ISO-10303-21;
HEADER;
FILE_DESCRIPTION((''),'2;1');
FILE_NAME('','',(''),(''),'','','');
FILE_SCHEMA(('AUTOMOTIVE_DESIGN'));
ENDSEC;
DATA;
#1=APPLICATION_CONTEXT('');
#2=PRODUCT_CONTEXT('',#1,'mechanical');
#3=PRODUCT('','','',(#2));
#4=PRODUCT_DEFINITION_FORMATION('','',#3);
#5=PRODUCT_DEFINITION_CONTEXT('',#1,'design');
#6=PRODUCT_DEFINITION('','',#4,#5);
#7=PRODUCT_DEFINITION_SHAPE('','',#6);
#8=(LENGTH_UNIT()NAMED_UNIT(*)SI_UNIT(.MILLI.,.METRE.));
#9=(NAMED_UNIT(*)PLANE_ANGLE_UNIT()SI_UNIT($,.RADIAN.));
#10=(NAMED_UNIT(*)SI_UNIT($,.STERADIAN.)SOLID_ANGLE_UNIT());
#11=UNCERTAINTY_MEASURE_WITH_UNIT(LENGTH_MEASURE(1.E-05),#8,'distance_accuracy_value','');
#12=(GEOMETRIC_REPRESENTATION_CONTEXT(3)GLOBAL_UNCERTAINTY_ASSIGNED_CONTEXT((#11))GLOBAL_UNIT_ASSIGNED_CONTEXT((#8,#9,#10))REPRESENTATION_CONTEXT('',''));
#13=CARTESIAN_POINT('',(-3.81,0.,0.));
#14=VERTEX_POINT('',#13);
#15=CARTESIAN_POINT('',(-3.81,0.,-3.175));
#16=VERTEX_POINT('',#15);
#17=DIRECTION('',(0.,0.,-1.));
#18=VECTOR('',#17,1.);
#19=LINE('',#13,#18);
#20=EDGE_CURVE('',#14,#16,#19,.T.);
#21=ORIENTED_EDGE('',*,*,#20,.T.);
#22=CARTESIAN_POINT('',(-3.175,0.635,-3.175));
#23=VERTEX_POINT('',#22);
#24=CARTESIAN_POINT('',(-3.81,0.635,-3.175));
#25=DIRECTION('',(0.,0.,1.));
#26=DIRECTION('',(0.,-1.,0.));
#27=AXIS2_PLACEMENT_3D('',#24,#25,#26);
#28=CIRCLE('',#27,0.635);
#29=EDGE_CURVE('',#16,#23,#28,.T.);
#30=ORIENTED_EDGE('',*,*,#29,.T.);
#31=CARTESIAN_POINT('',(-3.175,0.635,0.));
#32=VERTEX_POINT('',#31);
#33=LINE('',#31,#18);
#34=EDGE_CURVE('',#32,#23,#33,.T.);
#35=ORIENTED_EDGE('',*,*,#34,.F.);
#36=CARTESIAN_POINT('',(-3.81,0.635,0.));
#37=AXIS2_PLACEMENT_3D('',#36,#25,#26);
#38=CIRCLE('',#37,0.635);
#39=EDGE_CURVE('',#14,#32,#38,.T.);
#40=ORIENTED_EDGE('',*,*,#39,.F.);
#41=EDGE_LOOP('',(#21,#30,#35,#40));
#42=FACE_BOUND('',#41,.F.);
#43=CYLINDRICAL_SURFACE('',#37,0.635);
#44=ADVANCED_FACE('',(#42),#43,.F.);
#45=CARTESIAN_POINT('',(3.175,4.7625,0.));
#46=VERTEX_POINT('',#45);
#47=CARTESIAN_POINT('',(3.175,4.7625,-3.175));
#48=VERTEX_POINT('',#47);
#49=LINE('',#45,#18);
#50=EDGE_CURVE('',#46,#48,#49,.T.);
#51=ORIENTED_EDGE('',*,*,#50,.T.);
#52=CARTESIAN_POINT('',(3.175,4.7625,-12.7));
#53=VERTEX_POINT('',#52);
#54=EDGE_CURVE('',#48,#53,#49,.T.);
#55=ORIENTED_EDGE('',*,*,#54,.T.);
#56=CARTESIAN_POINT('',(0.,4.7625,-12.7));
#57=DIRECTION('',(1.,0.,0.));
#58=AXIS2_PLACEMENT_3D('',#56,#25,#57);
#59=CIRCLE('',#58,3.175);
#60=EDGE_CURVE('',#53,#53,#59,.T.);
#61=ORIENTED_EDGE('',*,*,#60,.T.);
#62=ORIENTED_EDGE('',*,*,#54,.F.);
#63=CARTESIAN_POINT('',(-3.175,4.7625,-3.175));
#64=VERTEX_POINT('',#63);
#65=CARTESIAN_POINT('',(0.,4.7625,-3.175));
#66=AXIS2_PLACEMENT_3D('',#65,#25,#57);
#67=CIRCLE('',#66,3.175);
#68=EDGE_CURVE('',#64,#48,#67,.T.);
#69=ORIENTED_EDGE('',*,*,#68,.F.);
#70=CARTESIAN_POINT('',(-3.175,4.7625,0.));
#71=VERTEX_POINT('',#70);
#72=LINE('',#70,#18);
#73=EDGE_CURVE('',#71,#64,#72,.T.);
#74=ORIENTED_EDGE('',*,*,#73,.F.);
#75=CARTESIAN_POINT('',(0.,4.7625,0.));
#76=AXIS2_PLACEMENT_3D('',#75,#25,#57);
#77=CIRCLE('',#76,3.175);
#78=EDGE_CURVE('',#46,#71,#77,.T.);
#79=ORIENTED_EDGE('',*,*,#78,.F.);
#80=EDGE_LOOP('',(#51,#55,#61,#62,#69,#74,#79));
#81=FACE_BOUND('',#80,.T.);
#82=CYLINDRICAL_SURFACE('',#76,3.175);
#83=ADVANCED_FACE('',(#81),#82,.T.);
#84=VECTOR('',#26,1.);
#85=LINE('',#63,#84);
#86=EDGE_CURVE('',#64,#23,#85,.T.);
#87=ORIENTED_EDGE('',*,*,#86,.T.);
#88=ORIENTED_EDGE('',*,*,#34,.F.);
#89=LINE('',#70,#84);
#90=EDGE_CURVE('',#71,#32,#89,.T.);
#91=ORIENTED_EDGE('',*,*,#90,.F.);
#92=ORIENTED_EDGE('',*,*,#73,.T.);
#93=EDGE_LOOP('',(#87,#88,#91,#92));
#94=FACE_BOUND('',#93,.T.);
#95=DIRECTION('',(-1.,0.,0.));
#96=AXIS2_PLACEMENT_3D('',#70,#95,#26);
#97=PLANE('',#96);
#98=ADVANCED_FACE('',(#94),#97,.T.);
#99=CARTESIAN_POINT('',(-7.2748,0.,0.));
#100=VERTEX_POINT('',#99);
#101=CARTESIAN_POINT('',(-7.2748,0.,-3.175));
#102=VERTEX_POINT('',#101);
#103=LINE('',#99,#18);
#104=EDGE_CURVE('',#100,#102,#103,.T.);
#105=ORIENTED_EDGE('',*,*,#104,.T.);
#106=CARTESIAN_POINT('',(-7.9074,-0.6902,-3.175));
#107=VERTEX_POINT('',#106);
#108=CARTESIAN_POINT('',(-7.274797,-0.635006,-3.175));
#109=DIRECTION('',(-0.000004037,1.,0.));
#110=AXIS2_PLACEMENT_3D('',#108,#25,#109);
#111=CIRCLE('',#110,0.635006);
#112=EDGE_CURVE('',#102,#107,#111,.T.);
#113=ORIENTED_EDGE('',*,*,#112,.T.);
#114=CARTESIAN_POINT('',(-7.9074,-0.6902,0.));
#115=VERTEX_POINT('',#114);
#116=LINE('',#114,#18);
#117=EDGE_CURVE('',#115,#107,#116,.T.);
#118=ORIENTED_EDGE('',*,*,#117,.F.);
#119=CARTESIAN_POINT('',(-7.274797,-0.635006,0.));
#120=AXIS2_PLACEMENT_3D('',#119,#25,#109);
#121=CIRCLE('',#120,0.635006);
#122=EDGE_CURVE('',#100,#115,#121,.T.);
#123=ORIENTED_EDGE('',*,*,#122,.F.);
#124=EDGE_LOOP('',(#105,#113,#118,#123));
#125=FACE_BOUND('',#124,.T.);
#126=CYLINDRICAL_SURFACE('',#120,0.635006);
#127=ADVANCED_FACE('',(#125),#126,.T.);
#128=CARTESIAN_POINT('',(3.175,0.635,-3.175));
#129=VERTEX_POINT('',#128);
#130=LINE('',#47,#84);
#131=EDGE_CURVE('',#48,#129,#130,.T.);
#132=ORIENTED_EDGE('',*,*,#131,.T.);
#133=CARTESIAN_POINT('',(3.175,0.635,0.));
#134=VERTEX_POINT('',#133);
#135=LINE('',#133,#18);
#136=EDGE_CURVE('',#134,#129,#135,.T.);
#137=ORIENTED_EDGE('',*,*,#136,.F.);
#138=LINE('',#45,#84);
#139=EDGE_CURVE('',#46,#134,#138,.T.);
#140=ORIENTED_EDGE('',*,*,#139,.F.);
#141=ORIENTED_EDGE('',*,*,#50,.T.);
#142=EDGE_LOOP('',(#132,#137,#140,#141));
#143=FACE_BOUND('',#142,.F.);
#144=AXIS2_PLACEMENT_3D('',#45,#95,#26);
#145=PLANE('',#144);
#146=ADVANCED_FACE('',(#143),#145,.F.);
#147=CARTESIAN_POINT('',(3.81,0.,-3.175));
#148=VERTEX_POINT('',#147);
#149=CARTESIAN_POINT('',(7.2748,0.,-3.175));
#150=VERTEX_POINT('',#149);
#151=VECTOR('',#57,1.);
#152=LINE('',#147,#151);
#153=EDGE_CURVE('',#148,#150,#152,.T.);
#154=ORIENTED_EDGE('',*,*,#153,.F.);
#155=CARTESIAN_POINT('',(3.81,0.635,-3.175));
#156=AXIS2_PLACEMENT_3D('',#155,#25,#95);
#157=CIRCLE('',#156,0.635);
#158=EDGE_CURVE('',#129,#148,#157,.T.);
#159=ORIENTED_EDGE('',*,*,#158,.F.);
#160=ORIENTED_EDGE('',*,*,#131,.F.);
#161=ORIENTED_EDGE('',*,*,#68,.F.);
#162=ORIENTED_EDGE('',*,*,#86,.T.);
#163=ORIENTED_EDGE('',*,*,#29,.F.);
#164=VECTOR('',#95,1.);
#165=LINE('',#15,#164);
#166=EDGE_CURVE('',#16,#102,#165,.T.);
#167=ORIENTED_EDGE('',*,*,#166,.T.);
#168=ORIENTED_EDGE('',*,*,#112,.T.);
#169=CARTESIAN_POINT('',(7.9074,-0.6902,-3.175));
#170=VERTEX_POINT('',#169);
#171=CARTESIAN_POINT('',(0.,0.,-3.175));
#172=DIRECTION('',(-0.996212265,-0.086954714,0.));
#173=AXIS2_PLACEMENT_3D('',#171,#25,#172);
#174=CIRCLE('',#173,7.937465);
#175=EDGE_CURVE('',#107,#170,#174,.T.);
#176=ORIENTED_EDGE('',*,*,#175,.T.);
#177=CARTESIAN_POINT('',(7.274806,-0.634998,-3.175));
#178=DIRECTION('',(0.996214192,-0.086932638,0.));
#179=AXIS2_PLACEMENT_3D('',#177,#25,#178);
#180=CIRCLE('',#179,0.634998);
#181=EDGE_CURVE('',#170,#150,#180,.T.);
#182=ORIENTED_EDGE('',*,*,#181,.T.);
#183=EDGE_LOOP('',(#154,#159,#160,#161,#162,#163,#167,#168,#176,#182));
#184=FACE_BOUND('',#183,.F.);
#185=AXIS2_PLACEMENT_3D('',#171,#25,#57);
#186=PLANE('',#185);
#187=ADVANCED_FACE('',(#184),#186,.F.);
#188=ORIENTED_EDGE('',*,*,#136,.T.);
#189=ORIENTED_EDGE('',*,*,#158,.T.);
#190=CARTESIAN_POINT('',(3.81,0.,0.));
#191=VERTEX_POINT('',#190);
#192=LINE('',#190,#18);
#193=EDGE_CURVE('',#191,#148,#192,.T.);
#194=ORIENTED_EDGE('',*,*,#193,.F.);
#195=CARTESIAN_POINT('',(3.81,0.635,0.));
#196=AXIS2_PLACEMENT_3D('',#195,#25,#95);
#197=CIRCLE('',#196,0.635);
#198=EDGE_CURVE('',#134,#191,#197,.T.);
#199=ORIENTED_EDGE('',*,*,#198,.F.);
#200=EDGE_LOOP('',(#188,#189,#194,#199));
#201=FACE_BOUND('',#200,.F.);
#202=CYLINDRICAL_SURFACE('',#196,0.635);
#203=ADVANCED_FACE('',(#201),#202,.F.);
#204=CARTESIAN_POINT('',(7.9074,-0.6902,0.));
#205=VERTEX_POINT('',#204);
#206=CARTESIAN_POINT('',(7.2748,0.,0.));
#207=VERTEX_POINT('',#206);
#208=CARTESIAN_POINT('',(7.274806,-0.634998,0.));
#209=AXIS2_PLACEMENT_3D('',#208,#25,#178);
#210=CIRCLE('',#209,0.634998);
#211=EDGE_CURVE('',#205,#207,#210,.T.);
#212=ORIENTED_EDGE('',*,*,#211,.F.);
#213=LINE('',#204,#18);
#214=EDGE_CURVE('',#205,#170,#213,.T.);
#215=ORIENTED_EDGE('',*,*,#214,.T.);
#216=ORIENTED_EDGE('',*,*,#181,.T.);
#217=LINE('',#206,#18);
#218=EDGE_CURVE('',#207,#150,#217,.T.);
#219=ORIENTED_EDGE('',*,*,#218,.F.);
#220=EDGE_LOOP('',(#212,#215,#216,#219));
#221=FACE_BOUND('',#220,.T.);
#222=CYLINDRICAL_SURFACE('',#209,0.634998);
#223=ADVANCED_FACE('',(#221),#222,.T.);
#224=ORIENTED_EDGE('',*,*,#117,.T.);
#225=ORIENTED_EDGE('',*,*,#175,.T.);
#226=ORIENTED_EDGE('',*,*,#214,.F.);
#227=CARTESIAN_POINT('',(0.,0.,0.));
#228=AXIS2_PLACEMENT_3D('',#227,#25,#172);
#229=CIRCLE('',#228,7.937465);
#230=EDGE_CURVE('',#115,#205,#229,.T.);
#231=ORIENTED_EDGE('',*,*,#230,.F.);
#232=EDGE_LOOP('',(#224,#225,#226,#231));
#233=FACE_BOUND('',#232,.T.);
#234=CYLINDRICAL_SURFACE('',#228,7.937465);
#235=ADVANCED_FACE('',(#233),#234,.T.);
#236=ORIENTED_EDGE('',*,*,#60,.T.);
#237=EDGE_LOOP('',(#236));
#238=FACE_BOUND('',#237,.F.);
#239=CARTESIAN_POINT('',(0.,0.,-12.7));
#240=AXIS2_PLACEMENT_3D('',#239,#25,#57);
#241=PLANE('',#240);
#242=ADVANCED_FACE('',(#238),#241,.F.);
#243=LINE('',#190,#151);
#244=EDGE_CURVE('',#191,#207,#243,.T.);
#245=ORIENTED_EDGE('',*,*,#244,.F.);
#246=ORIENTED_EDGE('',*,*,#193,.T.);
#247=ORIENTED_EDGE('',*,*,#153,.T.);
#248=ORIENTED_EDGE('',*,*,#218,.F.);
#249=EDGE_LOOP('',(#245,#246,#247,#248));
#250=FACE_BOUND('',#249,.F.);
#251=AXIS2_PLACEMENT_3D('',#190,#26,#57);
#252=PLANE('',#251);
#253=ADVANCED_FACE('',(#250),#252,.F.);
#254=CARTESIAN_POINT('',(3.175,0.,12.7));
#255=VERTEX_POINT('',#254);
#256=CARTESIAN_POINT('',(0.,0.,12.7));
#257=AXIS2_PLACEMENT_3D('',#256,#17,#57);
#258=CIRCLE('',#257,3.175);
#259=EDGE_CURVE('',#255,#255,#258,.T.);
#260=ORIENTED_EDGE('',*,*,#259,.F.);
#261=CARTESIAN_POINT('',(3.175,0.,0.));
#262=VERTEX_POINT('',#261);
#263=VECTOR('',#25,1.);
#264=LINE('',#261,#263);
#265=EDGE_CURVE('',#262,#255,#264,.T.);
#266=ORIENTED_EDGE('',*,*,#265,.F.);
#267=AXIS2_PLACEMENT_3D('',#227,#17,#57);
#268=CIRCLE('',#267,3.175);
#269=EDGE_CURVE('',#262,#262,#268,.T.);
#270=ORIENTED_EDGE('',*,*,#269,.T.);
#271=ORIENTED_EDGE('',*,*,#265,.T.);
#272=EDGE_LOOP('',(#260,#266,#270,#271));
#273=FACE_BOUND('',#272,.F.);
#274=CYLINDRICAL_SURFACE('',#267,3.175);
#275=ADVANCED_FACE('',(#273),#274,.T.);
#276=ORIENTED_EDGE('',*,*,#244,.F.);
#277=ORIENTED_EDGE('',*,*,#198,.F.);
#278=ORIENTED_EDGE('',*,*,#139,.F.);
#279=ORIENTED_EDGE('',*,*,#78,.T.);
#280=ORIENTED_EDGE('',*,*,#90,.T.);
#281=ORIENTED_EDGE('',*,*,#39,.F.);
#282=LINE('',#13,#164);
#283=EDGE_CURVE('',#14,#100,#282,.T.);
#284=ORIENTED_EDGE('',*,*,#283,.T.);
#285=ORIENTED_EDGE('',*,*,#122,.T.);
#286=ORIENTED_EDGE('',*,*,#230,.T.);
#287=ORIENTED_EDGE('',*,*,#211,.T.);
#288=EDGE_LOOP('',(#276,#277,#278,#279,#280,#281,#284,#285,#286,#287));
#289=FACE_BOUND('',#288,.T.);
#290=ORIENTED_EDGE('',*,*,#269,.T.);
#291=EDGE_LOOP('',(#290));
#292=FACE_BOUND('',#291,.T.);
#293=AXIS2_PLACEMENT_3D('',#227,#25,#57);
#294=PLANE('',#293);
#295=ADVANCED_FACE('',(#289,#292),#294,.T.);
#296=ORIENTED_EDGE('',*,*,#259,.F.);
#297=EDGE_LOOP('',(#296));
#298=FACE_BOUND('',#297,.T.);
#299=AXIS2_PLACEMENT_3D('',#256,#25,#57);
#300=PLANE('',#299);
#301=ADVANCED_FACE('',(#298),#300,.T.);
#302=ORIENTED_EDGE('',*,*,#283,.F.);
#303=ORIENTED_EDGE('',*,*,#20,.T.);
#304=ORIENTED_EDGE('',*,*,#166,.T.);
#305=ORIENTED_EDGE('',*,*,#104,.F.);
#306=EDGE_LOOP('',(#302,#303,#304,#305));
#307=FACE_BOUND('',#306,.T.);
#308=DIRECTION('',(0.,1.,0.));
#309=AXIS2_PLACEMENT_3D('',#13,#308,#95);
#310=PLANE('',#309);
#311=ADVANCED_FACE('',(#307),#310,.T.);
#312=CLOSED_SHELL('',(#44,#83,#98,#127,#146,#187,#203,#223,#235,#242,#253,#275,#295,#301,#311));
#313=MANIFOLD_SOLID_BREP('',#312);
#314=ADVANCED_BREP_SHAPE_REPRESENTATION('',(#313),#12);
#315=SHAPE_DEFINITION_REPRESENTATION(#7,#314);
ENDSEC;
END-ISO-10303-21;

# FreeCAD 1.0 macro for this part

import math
import FreeCAD as App
import Part
import Sketcher

V = App.Vector
Q = App.Units.Quantity

doc = App.newDocument("Part")
body = doc.addObject("PartDesign::Body", "Body")

sketch1 = body.newObject("Sketcher::SketchObject", "Sketch")
sketch1.AttachmentSupport = (doc.getObject("XY_Plane"), [""])
sketch1.MapMode = "FlatFace"
sketch1.addGeometry(Part.Circle(V(0, 0, 0), V(0, 0, 1), 3.175), False)
sketch1.addConstraint([
    Sketcher.Constraint("Coincident", 0, 3, -1, 1),
    Sketcher.Constraint("Diameter", 0, Q("0.25 in")),
])
pad1 = body.newObject("PartDesign::Pad", "Pad")
pad1.Profile = sketch1
pad1.Length = Q("0.5 in")

sketch2 = body.newObject("Sketcher::SketchObject", "Sketch001")
sketch2.AttachmentSupport = (doc.getObject("XY_Plane"), [""])
sketch2.MapMode = "FlatFace"
sketch2.addGeometry([
    Part.ArcOfCircle(Part.Circle(V(0, 4.7625, 0), V(0, 0, 1), 3.175), math.radians(0), math.radians(180)),
    Part.LineSegment(V(-3.175, 4.7625, 0), V(-3.175, 0.635, 0)),
    Part.ArcOfCircle(Part.Circle(V(-3.81, 0.635, 0), V(0, 0, 1), 0.635), math.radians(-90), math.radians(0)),
    Part.LineSegment(V(-3.81, 0, 0), V(-7.2748, 0, 0)),
    Part.ArcOfCircle(Part.Circle(V(-7.2748, -0.635, 0), V(0, 0, 1), 0.635), math.radians(90), math.radians(184.986937)),
    Part.ArcOfCircle(Part.Circle(V(0, 0, 0), V(0, 0, 1), 7.937465), math.radians(-175.011562), math.radians(-4.988438)),
    Part.ArcOfCircle(Part.Circle(V(7.2748, -0.635, 0), V(0, 0, 1), 0.635004), math.radians(-4.986937), math.radians(90)),
    Part.LineSegment(V(7.2748, 0, 0), V(3.81, 0, 0)),
    Part.ArcOfCircle(Part.Circle(V(3.81, 0.635, 0), V(0, 0, 1), 0.635), math.radians(180), math.radians(270)),
    Part.LineSegment(V(3.175, 0.635, 0), V(3.175, 4.7625, 0)),
], False)
sketch2.addConstraint([
    Sketcher.Constraint("Tangent", 0, 2, 1, 1),
    Sketcher.Constraint("Tangent", 1, 2, 2, 2),
    Sketcher.Constraint("Tangent", 2, 1, 3, 1),
    Sketcher.Constraint("Tangent", 3, 2, 4, 1),
    Sketcher.Constraint("Tangent", 4, 2, 5, 1),
    Sketcher.Constraint("Tangent", 5, 2, 6, 1),
    Sketcher.Constraint("Tangent", 6, 2, 7, 1),
    Sketcher.Constraint("Tangent", 7, 2, 8, 2),
    Sketcher.Constraint("Tangent", 8, 1, 9, 1),
    Sketcher.Constraint("Tangent", 9, 2, 0, 1),
    Sketcher.Constraint("Vertical", 1),
    Sketcher.Constraint("Horizontal", 3),
    Sketcher.Constraint("Horizontal", 7),
    Sketcher.Constraint("Vertical", 9),
    Sketcher.Constraint("Coincident", 5, 3, -1, 1),
    Sketcher.Constraint("Equal", 2, 4),
    Sketcher.Constraint("Equal", 4, 6),
    Sketcher.Constraint("Equal", 6, 8),
    Sketcher.Constraint("Symmetric", 3, 2, 6, 2, -1, 1),
    Sketcher.Constraint("PointOnObject", 0, 3, -2),
    Sketcher.Constraint("Radius", 0, Q("0.125 in")),
    Sketcher.Constraint("Radius", 2, Q("0.025 in")),
    Sketcher.Constraint("Radius", 5, Q("0.3125 in")),
    Sketcher.Constraint("DistanceY", 1, 2, 1, 1, Q("0.1625 in")),
])
pad2 = body.newObject("PartDesign::Pad", "Pad001")
pad2.Profile = sketch2
pad2.Length = Q("0.125 in")
pad2.Reversed = True

sketch3 = body.newObject("Sketcher::SketchObject", "Sketch002")
sketch3.AttachmentSupport = (doc.getObject("XY_Plane"), [""])
sketch3.MapMode = "FlatFace"
sketch3.addGeometry(Part.Circle(V(0, 4.7625, 0), V(0, 0, 1), 3.175), False)
sketch3.addConstraint([
    Sketcher.Constraint("PointOnObject", 0, 3, -2),
    Sketcher.Constraint("Diameter", 0, Q("0.25 in")),
    Sketcher.Constraint("DistanceY", -1, 1, 0, 3, Q("0.1875 in")),
])
pad3 = body.newObject("PartDesign::Pad", "Pad002")
pad3.Profile = sketch3
pad3.Length = Q("0.5 in")
pad3.Reversed = True

doc.recompute()
